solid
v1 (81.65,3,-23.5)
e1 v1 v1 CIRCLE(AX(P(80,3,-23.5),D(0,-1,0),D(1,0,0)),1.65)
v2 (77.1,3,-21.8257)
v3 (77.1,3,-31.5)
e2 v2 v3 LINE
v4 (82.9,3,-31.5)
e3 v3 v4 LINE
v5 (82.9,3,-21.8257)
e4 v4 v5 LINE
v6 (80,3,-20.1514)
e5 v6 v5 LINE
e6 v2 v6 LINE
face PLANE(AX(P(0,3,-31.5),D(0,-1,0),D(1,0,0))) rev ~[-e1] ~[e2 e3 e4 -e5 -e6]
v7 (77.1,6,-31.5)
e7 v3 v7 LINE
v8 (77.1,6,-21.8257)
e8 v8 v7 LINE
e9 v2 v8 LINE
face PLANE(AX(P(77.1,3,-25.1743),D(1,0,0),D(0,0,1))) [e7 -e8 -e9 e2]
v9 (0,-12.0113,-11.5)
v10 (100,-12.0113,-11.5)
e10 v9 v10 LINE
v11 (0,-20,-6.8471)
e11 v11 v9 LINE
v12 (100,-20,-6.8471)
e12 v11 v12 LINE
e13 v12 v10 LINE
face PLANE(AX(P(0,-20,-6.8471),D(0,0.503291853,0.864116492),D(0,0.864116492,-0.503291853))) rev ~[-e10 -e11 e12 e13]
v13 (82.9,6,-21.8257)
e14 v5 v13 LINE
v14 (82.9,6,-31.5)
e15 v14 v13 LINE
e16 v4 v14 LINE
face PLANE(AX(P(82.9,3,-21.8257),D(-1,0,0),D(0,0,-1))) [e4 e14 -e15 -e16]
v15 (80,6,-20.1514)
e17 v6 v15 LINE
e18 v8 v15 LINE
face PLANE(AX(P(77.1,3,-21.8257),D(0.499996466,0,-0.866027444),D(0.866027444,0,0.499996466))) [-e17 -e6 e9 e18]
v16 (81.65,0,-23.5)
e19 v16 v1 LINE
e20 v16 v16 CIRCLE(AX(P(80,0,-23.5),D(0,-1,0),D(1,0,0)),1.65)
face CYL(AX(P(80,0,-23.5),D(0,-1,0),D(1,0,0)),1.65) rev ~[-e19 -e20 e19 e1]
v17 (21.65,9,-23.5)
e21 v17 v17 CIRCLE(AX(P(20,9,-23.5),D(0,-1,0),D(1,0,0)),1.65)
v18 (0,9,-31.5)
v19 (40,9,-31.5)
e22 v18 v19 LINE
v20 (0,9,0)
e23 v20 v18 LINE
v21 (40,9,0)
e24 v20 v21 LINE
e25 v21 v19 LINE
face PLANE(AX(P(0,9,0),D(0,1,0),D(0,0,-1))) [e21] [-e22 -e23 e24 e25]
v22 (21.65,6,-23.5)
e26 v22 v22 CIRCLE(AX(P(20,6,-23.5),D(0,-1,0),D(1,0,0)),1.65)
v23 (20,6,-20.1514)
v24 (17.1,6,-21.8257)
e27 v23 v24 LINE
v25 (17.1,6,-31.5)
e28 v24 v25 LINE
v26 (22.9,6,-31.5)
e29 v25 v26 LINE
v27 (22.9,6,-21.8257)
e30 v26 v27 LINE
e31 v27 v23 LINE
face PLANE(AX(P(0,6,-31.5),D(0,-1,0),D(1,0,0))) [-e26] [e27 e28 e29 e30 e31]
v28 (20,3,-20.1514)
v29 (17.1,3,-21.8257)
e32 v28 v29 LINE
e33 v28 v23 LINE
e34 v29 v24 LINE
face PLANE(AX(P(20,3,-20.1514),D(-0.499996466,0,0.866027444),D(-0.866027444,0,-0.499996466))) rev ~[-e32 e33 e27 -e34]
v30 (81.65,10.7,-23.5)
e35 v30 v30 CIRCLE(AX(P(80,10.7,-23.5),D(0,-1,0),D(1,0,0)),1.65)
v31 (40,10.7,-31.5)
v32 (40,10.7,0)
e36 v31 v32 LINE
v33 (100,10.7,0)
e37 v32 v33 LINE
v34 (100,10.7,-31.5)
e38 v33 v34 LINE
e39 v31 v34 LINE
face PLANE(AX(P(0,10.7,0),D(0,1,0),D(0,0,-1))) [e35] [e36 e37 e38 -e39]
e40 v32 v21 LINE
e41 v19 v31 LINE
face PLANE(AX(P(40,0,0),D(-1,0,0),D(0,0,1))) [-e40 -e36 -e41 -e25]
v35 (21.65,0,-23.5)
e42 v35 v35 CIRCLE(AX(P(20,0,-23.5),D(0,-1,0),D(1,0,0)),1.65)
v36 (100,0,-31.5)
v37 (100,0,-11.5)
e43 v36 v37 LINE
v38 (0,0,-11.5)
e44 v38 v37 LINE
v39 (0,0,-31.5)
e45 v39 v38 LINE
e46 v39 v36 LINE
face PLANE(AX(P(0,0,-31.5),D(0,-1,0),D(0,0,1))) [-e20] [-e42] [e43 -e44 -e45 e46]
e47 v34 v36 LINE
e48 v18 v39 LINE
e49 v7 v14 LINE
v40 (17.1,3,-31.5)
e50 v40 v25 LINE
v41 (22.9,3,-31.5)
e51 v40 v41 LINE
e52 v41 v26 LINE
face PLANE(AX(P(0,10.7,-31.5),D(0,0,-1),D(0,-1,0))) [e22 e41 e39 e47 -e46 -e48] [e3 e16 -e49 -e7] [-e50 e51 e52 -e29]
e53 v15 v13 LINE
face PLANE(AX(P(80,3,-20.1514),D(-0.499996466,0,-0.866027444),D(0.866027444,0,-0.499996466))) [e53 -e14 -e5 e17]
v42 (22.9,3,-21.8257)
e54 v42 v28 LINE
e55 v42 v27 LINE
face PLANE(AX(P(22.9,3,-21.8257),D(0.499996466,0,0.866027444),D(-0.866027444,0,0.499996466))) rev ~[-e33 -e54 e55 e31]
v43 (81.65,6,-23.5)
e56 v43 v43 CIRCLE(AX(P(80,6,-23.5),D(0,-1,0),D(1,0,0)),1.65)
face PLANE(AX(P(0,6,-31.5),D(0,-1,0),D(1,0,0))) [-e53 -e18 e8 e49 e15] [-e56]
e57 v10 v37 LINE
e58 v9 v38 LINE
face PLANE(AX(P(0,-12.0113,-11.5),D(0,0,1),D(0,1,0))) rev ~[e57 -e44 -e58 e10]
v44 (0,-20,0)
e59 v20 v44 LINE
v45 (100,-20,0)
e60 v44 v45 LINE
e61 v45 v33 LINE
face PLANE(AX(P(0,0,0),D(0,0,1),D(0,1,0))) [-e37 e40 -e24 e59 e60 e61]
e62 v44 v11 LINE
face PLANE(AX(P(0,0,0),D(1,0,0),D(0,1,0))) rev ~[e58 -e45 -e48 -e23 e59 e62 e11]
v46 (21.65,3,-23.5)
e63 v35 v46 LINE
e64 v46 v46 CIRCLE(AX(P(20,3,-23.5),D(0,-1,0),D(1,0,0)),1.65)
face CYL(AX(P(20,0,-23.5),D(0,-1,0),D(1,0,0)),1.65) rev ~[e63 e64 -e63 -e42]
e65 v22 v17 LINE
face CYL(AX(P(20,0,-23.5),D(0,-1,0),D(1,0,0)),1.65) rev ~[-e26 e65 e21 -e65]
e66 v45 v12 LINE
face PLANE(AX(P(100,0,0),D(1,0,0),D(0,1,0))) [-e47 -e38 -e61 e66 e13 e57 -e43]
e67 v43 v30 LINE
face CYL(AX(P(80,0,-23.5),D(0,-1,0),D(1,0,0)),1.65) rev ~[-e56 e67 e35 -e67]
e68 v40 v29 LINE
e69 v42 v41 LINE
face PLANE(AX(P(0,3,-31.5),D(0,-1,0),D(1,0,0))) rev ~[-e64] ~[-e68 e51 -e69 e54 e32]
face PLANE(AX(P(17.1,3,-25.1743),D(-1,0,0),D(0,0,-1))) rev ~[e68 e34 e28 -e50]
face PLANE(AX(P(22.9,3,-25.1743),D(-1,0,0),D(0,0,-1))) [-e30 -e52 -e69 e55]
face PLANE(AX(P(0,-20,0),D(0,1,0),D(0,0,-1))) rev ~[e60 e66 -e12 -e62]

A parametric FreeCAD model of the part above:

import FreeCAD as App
import Part
import Sketcher
from FreeCAD import Vector
Q = App.Units.Quantity


def add_polygon(sketch, points):
    """Adds a closed chain of lines whose ends are joined by coincident constraints."""
    first, n = sketch.GeometryCount, len(points)
    for a, b in zip(points, points[1:] + points[:1]):
        sketch.addGeometry(Part.LineSegment(App.Vector(*a, 0), App.Vector(*b, 0)), False)
    for i in range(n):
        sketch.addConstraint(Sketcher.Constraint("Coincident", first + i, 2, first + (i + 1) % n, 1))

doc = App.newDocument("Part")
body = doc.addObject("PartDesign::Body", "Body")

sketch1 = body.newObject("Sketcher::SketchObject", "Sketch")
sketch1.AttachmentSupport = (doc.getObject("YZ_Plane"), [""])
sketch1.MapMode = "FlatFace"
add_polygon(sketch1, [(11, 0), (-20, 0), (-20, -7), (-12, -12), (0, -12), (0, -32), (11, -32)])
sketch1.addConstraint(Sketcher.Constraint("Horizontal", 0))
sketch1.addConstraint(Sketcher.Constraint("Vertical", 1))
sketch1.addConstraint(Sketcher.Constraint("Horizontal", 3))
sketch1.addConstraint(Sketcher.Constraint("Vertical", 4))
sketch1.addConstraint(Sketcher.Constraint("Horizontal", 5))
sketch1.addConstraint(Sketcher.Constraint("Vertical", 6))
sketch1.addConstraint(Sketcher.Constraint("PointOnObject", 0, 2, -1))
sketch1.addConstraint(Sketcher.Constraint("PointOnObject", 3, 2, -2))
sketch1.addConstraint(Sketcher.Constraint("DistanceY", 4, 2, 4, 1, Q("20 mm")))
sketch1.addConstraint(Sketcher.Constraint("DistanceX", 5, 1, 5, 2, Q("10.7 mm")))
sketch1.addConstraint(Sketcher.Constraint("DistanceX", 0, 2, -1, 1, Q("20 mm")))
sketch1.addConstraint(Sketcher.Constraint("DistanceY", 2, 2, -1, 1, Q("11.5 mm")))
sketch1.addConstraint(Sketcher.Constraint("DistanceY", 1, 2, 1, 1, Q("6.847 mm")))
sketch1.addConstraint(Sketcher.Constraint("Distance", 2, Q("9.245 mm")))
pad1 = body.newObject("PartDesign::Pad", "Pad")
pad1.Profile = sketch1
pad1.Length = 100

sketch2 = body.newObject("Sketcher::SketchObject", "Sketch001")
sketch2.AttachmentSupport = (doc.getObject("YZ_Plane"), [""])
sketch2.MapMode = "FlatFace"
add_polygon(sketch2, [(9, -31.5), (9, 0), (10.7, 0), (10.7, -31.5)])
sketch2.addConstraint(Sketcher.Constraint("Vertical", 0))
sketch2.addConstraint(Sketcher.Constraint("Horizontal", 1))
sketch2.addConstraint(Sketcher.Constraint("Vertical", 2))
sketch2.addConstraint(Sketcher.Constraint("Horizontal", 3))
sketch2.addConstraint(Sketcher.Constraint("PointOnObject", 0, 2, -1))
sketch2.addConstraint(Sketcher.Constraint("DistanceX", 1, 1, 1, 2, Q("1.7 mm")))
sketch2.addConstraint(Sketcher.Constraint("DistanceY", 0, 1, 0, 2, Q("31.5 mm")))
sketch2.addConstraint(Sketcher.Constraint("DistanceX", -1, 1, 0, 2, Q("9 mm")))
pocket1 = body.newObject("PartDesign::Pocket", "Pocket")
pocket1.Profile = sketch2
pocket1.Length = 40
pocket1.Reversed = True

sketch3 = body.newObject("Sketcher::SketchObject", "Sketch002")
sketch3.AttachmentSupport = (doc.getObject("XZ_Plane"), [""])
sketch3.MapMode = "FlatFace"
sketch3.addGeometry(Part.Circle(Vector(80, -23.5, 0), Vector(0, 0, 1), 1.6), False)
sketch3.addGeometry(Part.Circle(Vector(20, -23.5, 0), Vector(0, 0, 1), 1.6), False)
sketch3.addConstraint(Sketcher.Constraint("Equal", 0, 1))
sketch3.addConstraint(Sketcher.Constraint("Horizontal", 0, 3, 1, 3))
sketch3.addConstraint(Sketcher.Constraint("Diameter", 0, Q("3.3 mm")))
sketch3.addConstraint(Sketcher.Constraint("DistanceX", -1, 1, 1, 3, Q("20 mm")))
sketch3.addConstraint(Sketcher.Constraint("DistanceX", -1, 1, 0, 3, Q("80 mm")))
sketch3.addConstraint(Sketcher.Constraint("DistanceY", 0, 3, -1, 1, Q("23.5 mm")))
pocket2 = body.newObject("PartDesign::Pocket", "Pocket001")
pocket2.Profile = sketch3
pocket2.Length = 40

sketch4 = body.newObject("Sketcher::SketchObject", "Sketch003")
sketch4.AttachmentSupport = (doc.getObject("XZ_Plane"), [""])
sketch4.MapMode = "FlatFace"
sketch4.AttachmentOffset = App.Placement(Vector(0, 0, -3), App.Rotation())
add_polygon(sketch4, [(77.1, -21.8), (77.1, -31.5), (82.9, -31.5), (82.9, -21.8), (80, -20.2)])
add_polygon(sketch4, [(17.1, -31.5), (22.9, -31.5), (22.9, -21.8), (20, -20.2), (17.1, -21.8)])
sketch4.addGeometry(Part.Circle(Vector(20, -23.5, 0), Vector(0, 0, 1), 1.6), False)
sketch4.addConstraint(Sketcher.Constraint("Vertical", 0))
sketch4.addConstraint(Sketcher.Constraint("Horizontal", 1))
sketch4.addConstraint(Sketcher.Constraint("Vertical", 2))
sketch4.addConstraint(Sketcher.Constraint("Horizontal", 5))
sketch4.addConstraint(Sketcher.Constraint("Vertical", 6))
sketch4.addConstraint(Sketcher.Constraint("Vertical", 9))
sketch4.addConstraint(Sketcher.Constraint("Parallel", 3, 7))
sketch4.addConstraint(Sketcher.Constraint("Parallel", 4, 8))
sketch4.addConstraint(Sketcher.Constraint("Horizontal", 2, 2, 4, 2))
sketch4.addConstraint(Sketcher.Constraint("Horizontal", 1, 2, 5, 2))
sketch4.addConstraint(Sketcher.Constraint("Horizontal", 4, 2, 6, 2))
sketch4.addConstraint(Sketcher.Constraint("Horizontal", 3, 2, 7, 2))
sketch4.addConstraint(Sketcher.Constraint("Horizontal", 6, 2, 8, 2))
sketch4.addConstraint(Sketcher.Constraint("Vertical", 10, 3, 7, 2))
sketch4.addConstraint(Sketcher.Constraint("Equal", 3, 4))
sketch4.addConstraint(Sketcher.Constraint("DistanceX", 1, 1, 1, 2, Q("5.8 mm")))
sketch4.addConstraint(Sketcher.Constraint("Diameter", 10, Q("3.3 mm")))
sketch4.addConstraint(Sketcher.Constraint("Angle", 3, Q("150.0002 deg")))
sketch4.addConstraint(Sketcher.Constraint("DistanceX", -1, 1, 10, 3, Q("20 mm")))
sketch4.addConstraint(Sketcher.Constraint("DistanceX", -1, 1, 3, 2, Q("80 mm")))
sketch4.addConstraint(Sketcher.Constraint("DistanceY", 0, 2, 10, 3, Q("8 mm")))
sketch4.addConstraint(Sketcher.Constraint("DistanceY", 10, 3, -1, 1, Q("23.5 mm")))
sketch4.addConstraint(Sketcher.Constraint("DistanceY", 0, 2, 0, 1, Q("9.6743 mm")))
pocket3 = body.newObject("PartDesign::Pocket", "Pocket002")
pocket3.Profile = sketch4
pocket3.Length = 3

doc.recompute()
